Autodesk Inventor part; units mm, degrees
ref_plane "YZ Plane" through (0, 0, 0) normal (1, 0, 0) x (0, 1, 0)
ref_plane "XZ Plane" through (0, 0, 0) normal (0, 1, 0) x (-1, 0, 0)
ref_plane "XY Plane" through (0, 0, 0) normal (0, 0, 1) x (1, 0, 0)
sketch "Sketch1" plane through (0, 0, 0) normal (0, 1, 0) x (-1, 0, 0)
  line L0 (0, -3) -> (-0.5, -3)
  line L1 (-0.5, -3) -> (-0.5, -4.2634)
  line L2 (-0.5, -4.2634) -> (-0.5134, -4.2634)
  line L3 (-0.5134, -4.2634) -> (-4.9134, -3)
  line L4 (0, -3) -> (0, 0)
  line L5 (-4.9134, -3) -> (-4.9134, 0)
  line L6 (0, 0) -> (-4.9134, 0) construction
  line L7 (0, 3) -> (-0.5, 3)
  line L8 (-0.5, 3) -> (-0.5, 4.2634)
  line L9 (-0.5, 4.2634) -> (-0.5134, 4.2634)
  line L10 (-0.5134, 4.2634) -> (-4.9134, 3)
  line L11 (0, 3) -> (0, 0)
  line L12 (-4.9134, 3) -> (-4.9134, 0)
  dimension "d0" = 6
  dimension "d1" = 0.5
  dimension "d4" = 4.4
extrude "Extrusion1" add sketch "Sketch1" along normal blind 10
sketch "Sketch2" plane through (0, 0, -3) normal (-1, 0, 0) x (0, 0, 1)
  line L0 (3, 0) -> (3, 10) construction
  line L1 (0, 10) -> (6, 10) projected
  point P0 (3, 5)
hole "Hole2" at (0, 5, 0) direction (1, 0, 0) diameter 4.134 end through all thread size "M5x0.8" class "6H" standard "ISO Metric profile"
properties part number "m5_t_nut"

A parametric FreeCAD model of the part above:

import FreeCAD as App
import Part
import Sketcher
Q = App.Units.Quantity


def add_polygon(sketch, points):
    """Adds a closed chain of lines whose ends are joined by coincident constraints."""
    first, n = sketch.GeometryCount, len(points)
    for a, b in zip(points, points[1:] + points[:1]):
        sketch.addGeometry(Part.LineSegment(App.Vector(*a, 0), App.Vector(*b, 0)), False)
    for i in range(n):
        sketch.addConstraint(Sketcher.Constraint("Coincident", first + i, 2, first + (i + 1) % n, 1))

doc = App.newDocument("Part")
body = doc.addObject("PartDesign::Body", "Body")

# Sketch on XZ plane
sketch1 = body.newObject("Sketcher::SketchObject", "Sketch")
sketch1.AttachmentSupport = (doc.getObject("XZ_Plane"), [""])
sketch1.MapMode = "FlatFace"
add_polygon(sketch1, [(0.5, -3), (0, -3), (0, 3), (0.5, 3), (0.5, 4.2634), (0.5134, 4.2634), (4.9134, 3), (4.9134, -3), (0.5134, -4.2634), (0.5, -4.2634)])  # lines 0-9
sketch1.addConstraint(Sketcher.Constraint("Horizontal", 0))
sketch1.addConstraint(Sketcher.Constraint("Vertical", 1))
sketch1.addConstraint(Sketcher.Constraint("Horizontal", 2))
sketch1.addConstraint(Sketcher.Constraint("Vertical", 3))
sketch1.addConstraint(Sketcher.Constraint("Horizontal", 4))
sketch1.addConstraint(Sketcher.Constraint("Vertical", 6))
sketch1.addConstraint(Sketcher.Constraint("Horizontal", 8))
sketch1.addConstraint(Sketcher.Constraint("Vertical", 9))
sketch1.addConstraint(Sketcher.Constraint("Symmetric", 0, 2, 1, 2, -1, 1))
sketch1.addConstraint(Sketcher.Constraint("Symmetric", 4, 2, 7, 2, -1))
sketch1.addConstraint(Sketcher.Constraint("Horizontal", 2, 2, 5, 2))
sketch1.addConstraint(Sketcher.Constraint("Horizontal", 0, 2, 6, 2))
sketch1.addConstraint(Sketcher.Constraint("Vertical", 3, 2, 8, 2))
sketch1.addConstraint(Sketcher.Constraint("DistanceY", 1, 1, 1, 2, 6.0))
sketch1.addConstraint(Sketcher.Constraint("DistanceX", 0, 2, 0, 1, 0.5))
sketch1.addConstraint(Sketcher.Constraint("DistanceX", 4, 2, 5, 2, 4.4))
sketch1.addConstraint(Sketcher.Constraint("Angle", 5, Q("-16.0207 deg")))
sketch1.addConstraint(Sketcher.Constraint("DistanceX", 4, 1, 4, 2, 0.0134))
pad1 = body.newObject("PartDesign::Pad", "Pad")
pad1.Profile = sketch1
pad1.Length = 10
pad1.Reversed = True

# Sketch on YZ plane
sketch2 = body.newObject("Sketcher::SketchObject", "Sketch001")
sketch2.AttachmentSupport = (doc.getObject("YZ_Plane"), [""])
sketch2.MapMode = "FlatFace"
sketch2.addGeometry(Part.Circle(App.Vector(5, 0, 0), App.Vector(0, 0, 1), 2.067), False)
sketch2.addConstraint(Sketcher.Constraint("PointOnObject", 0, 3, -1))
sketch2.addConstraint(Sketcher.Constraint("Diameter", 0, 4.134))
sketch2.addConstraint(Sketcher.Constraint("DistanceX", -1, 1, 0, 3, 5.0))
doc.recompute()
hole = body.newObject("PartDesign::Hole", "Hole")
hole.Profile = sketch2
hole.ThreadType = "None"
hole.Diameter = 4.134
hole.DepthType = "ThroughAll"
hole.Reversed = True

doc.recompute()
